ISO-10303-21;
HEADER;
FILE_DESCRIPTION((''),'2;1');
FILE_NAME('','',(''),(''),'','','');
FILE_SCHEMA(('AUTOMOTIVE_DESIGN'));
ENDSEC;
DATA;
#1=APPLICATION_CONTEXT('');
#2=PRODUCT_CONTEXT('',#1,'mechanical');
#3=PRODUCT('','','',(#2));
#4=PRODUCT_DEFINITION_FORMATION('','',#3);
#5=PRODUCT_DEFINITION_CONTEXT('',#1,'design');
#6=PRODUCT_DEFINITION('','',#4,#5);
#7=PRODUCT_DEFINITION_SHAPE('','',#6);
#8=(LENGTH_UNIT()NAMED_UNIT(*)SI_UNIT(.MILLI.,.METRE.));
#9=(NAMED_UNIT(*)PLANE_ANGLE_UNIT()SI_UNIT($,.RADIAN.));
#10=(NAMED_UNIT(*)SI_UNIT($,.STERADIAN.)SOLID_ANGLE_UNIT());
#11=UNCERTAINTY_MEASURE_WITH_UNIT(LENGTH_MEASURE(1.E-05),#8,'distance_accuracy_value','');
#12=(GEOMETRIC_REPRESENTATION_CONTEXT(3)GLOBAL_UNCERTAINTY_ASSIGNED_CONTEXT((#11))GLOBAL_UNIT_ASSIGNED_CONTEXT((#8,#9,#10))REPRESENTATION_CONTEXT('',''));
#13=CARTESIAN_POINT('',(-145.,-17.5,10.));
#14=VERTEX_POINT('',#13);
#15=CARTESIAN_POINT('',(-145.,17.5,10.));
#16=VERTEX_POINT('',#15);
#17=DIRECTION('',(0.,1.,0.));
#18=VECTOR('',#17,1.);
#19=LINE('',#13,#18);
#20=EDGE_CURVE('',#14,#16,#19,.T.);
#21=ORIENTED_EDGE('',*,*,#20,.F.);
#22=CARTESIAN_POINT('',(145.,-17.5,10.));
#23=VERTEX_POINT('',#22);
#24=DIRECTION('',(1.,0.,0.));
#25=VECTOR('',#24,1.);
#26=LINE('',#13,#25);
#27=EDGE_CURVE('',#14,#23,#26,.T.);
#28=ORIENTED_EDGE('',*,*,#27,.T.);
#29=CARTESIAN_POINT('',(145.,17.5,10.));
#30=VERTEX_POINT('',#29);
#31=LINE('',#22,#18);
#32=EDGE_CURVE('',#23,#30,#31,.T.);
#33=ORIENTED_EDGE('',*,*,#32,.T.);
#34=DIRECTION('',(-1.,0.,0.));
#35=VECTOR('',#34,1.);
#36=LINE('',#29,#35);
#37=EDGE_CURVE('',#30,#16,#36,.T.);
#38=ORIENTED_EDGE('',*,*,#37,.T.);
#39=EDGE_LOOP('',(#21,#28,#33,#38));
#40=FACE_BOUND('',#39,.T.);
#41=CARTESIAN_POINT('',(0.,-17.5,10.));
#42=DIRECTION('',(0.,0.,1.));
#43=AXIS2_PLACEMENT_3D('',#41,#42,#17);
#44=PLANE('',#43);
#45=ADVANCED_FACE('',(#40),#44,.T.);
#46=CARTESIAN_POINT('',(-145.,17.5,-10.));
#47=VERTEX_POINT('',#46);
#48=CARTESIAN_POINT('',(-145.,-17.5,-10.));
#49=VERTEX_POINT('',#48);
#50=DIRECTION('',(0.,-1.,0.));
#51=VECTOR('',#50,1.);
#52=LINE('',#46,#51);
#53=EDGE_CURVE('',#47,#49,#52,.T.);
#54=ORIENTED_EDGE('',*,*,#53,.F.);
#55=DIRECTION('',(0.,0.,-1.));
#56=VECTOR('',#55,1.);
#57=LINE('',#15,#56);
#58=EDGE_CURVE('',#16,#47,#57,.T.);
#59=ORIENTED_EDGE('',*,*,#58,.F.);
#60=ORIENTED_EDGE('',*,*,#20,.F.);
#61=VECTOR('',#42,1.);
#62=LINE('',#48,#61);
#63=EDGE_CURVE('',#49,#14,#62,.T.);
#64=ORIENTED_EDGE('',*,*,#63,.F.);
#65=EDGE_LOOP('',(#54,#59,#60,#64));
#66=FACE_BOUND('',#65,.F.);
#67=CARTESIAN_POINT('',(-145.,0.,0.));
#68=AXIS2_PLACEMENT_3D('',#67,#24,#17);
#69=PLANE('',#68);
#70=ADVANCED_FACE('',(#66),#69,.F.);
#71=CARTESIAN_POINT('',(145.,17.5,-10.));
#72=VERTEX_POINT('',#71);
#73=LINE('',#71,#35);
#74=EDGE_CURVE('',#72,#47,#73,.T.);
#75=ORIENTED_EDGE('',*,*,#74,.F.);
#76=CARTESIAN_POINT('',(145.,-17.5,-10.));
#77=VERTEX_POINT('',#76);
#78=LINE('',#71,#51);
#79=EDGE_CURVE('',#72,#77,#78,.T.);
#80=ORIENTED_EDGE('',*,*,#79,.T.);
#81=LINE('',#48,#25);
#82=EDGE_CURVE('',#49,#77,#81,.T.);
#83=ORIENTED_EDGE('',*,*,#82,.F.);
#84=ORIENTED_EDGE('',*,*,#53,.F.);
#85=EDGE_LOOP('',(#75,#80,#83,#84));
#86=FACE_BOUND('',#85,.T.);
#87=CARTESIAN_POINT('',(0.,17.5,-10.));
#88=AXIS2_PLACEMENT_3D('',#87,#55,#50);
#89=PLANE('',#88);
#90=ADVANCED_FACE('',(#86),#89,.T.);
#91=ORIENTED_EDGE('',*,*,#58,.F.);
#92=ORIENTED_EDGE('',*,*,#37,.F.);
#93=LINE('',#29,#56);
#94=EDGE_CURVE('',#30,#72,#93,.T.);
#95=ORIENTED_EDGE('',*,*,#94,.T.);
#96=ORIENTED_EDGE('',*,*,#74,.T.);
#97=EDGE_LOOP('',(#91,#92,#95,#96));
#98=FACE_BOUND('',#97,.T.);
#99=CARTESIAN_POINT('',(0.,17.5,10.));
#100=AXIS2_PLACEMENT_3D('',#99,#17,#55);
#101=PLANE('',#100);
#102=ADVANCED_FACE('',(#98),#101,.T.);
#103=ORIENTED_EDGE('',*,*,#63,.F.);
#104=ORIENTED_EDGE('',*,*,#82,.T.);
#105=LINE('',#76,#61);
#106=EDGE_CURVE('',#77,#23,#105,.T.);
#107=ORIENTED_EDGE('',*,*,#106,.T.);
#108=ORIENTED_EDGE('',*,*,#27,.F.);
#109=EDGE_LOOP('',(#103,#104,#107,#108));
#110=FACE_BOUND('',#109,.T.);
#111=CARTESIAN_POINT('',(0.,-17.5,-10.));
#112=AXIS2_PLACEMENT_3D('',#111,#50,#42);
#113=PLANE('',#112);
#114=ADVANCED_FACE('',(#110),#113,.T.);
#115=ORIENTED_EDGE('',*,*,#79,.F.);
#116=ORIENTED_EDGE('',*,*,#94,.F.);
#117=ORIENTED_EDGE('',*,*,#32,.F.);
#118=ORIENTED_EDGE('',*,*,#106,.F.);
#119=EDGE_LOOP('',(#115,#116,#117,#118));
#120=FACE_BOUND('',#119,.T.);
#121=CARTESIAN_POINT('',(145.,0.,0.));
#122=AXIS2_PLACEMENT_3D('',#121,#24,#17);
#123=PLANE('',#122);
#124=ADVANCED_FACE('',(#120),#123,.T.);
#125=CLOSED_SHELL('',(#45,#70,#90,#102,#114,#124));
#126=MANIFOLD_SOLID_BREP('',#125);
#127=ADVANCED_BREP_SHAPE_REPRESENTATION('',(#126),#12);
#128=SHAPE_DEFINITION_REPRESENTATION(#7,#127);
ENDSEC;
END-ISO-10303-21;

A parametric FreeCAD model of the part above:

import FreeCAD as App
import Part
import Sketcher
from FreeCAD import Vector
Q = App.Units.Quantity

doc = App.newDocument("Part")
params = doc.addObject("Spreadsheet::Sheet", "Params")
for row, (alias, value) in enumerate([
    ("sketch1_width", "35 mm"),
    ("sketch1_height", "20 mm"),
    ("pad1_length", "290 mm"),
], start=1):
    params.set(f"A{row}", alias)
    params.set(f"B{row}", "=" + value)
    params.setAlias(f"B{row}", alias)

body = doc.addObject("PartDesign::Body", "Body")

# Sketch on YZ plane
sketch1 = body.newObject("Sketcher::SketchObject", "Sketch")
sketch1.AttachmentSupport = (doc.getObject("YZ_Plane"), [""])
sketch1.MapMode = "FlatFace"
sketch1.addGeometry(Part.LineSegment(Vector(18, 10, 0), Vector(-18, 10, 0)), False)
sketch1.addGeometry(Part.LineSegment(Vector(-18, 10, 0), Vector(-18, -10, 0)), False)
sketch1.addGeometry(Part.LineSegment(Vector(-18, -10, 0), Vector(18, -10, 0)), False)
sketch1.addGeometry(Part.LineSegment(Vector(18, -10, 0), Vector(18, 10, 0)), False)
sketch1.addConstraint(Sketcher.Constraint("Coincident", 0, 2, 1, 1))
sketch1.addConstraint(Sketcher.Constraint("Coincident", 1, 2, 2, 1))
sketch1.addConstraint(Sketcher.Constraint("Coincident", 2, 2, 3, 1))
sketch1.addConstraint(Sketcher.Constraint("Coincident", 3, 2, 0, 1))
sketch1.addConstraint(Sketcher.Constraint("Horizontal", 0))
sketch1.addConstraint(Sketcher.Constraint("Vertical", 1))
sketch1.addConstraint(Sketcher.Constraint("Horizontal", 2))
sketch1.addConstraint(Sketcher.Constraint("Vertical", 3))
sketch1.addConstraint(Sketcher.Constraint("Symmetric", 0, 2, 2, 2, -1, 1))
sketch1.addConstraint(Sketcher.Constraint("DistanceX", 0, 2, 0, 1, Q("35 mm")))
sketch1.addConstraint(Sketcher.Constraint("DistanceY", 1, 2, 1, 1, Q("20 mm")))
sketch1.setExpression("Constraints[9]", "Params.sketch1_width")
sketch1.setExpression("Constraints[10]", "Params.sketch1_height")
pad1 = body.newObject("PartDesign::Pad", "Pad")
pad1.Profile = sketch1
pad1.setExpression("Length", "Params.pad1_length")
pad1.Midplane = True

doc.recompute()
